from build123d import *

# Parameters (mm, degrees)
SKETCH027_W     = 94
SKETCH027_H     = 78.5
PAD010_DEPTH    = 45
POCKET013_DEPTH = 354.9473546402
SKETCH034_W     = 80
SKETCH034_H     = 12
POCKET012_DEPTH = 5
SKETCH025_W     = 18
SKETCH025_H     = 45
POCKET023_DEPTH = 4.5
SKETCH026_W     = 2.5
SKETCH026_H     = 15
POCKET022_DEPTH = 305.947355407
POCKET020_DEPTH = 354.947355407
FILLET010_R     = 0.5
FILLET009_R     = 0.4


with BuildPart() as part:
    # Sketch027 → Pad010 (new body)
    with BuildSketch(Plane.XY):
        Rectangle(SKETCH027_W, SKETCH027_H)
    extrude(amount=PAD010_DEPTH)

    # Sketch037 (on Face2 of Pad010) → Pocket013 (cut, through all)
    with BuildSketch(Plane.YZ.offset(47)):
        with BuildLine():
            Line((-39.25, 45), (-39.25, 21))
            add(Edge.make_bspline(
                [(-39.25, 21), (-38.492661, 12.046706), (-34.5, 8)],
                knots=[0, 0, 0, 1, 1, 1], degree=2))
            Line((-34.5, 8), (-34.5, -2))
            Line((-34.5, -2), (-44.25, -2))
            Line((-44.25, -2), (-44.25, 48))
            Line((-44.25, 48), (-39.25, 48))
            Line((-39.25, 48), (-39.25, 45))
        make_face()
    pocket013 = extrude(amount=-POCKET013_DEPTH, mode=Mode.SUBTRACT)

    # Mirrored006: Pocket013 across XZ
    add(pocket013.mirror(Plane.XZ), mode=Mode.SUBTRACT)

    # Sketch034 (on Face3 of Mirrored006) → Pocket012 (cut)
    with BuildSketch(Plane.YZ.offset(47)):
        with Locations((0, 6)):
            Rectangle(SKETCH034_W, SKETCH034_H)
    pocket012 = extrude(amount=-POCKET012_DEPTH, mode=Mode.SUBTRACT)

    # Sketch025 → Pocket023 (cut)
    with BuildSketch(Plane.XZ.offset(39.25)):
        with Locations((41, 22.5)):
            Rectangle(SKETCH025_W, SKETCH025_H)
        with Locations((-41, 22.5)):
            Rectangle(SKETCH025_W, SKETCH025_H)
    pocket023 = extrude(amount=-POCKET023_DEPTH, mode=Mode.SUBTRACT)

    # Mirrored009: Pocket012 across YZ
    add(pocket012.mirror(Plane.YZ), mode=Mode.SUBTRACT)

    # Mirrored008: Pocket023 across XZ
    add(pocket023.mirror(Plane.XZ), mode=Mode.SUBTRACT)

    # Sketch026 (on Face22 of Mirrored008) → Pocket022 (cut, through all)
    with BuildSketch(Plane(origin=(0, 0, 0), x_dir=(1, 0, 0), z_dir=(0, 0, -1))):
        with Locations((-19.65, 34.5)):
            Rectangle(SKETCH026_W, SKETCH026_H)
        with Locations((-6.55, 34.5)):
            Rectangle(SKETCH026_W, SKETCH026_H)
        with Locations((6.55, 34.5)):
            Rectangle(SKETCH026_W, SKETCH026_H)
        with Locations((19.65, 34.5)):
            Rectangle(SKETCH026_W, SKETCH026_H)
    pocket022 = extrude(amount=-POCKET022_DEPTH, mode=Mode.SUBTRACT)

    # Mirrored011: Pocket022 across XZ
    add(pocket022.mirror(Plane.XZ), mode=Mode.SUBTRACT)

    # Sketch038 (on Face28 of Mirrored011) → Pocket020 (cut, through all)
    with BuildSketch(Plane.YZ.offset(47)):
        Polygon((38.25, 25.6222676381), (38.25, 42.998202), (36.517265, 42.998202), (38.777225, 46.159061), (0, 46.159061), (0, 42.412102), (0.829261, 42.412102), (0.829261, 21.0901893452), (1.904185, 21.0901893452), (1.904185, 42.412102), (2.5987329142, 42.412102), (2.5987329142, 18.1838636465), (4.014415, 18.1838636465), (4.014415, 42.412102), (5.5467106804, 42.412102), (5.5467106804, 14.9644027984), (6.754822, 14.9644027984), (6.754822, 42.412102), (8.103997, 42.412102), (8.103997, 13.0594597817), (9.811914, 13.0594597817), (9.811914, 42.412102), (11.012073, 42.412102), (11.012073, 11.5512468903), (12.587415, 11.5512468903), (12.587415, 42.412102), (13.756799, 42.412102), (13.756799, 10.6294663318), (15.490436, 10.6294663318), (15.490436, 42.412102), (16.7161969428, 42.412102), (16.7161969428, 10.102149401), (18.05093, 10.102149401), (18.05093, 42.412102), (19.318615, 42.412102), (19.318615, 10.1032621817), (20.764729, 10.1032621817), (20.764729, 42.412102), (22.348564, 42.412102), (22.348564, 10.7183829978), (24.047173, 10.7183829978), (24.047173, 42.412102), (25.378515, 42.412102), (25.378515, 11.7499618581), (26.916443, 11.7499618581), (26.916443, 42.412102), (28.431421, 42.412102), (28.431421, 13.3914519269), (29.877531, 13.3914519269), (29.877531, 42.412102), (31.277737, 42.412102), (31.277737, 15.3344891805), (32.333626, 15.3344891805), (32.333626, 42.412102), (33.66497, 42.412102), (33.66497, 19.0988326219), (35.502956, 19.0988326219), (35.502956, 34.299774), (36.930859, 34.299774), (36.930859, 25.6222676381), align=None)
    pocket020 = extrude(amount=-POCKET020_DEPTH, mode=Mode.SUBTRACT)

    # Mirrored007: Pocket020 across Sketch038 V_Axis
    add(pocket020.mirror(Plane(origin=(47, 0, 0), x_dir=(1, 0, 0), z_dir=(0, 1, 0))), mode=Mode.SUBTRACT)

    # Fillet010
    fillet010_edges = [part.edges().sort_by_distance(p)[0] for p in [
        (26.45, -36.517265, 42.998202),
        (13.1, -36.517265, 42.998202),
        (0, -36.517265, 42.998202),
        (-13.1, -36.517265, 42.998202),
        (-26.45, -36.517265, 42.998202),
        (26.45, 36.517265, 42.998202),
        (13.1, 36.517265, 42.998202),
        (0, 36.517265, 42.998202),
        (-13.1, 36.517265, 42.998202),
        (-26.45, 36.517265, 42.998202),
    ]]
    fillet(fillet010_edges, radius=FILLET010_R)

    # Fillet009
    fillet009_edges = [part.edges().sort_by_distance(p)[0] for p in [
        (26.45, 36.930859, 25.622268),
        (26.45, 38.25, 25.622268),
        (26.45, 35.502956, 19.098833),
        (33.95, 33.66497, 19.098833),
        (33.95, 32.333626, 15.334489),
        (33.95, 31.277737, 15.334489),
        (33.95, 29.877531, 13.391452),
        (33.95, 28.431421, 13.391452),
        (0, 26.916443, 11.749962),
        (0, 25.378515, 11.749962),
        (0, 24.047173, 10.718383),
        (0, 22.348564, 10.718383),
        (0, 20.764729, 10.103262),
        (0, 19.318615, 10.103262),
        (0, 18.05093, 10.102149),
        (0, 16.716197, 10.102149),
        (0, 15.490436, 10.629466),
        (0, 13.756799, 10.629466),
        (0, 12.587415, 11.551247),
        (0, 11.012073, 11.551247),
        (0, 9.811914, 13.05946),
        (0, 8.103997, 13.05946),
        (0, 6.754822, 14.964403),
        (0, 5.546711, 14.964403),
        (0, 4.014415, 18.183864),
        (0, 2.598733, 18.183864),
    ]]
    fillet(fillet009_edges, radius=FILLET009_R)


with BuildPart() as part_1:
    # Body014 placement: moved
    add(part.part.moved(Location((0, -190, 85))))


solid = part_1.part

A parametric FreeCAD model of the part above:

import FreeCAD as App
import Part
import Sketcher

V = App.Vector


def edges_at(feature, points):
    """Names of the edges that pass closest to the given points."""
    edges = feature.Shape.Edges
    near = lambda p: min(range(len(edges)), key=lambda i: edges[i].distToShape(Part.Vertex(*p))[0])
    return sorted({f"Edge{near(p) + 1}" for p in points})


def add_polygon(sketch, points):
    """Adds a closed chain of lines whose ends are joined by coincident constraints."""
    first, n = sketch.GeometryCount, len(points)
    for a, b in zip(points, points[1:] + points[:1]):
        sketch.addGeometry(Part.LineSegment(App.Vector(*a, 0), App.Vector(*b, 0)), False)
    for i in range(n):
        sketch.addConstraint(Sketcher.Constraint("Coincident", first + i, 2, first + (i + 1) % n, 1))

doc = App.newDocument("Part")
body = doc.addObject("PartDesign::Body", "Body")

sketch1 = body.newObject("Sketcher::SketchObject", "Sketch")
sketch1.AttachmentSupport = (doc.getObject("XY_Plane"), [""])
sketch1.MapMode = "FlatFace"
add_polygon(sketch1, [(-47, 39), (-47, -39), (47, -39), (47, 39)])
sketch1.addConstraint([
    Sketcher.Constraint("Vertical", 0),
    Sketcher.Constraint("Horizontal", 1),
    Sketcher.Constraint("Vertical", 2),
    Sketcher.Constraint("Horizontal", 3),
    Sketcher.Constraint("Symmetric", 0, 2, 2, 2, -1, 1),
    Sketcher.Constraint("DistanceX", 1, 1, 1, 2, 94.0),
    Sketcher.Constraint("DistanceY", 0, 2, 0, 1, 78.5),
])
pad1 = body.newObject("PartDesign::Pad", "Pad")
pad1.Profile = sketch1
pad1.Length = 45

sketch2 = body.newObject("Sketcher::SketchObject", "Sketch001")
sketch2.AttachmentSupport = (doc.getObject("YZ_Plane"), [""])
sketch2.MapMode = "FlatFace"
sketch2.AttachmentOffset = App.Placement(V(0, 0, 47), App.Rotation())
sketch2.addGeometry([
    Part.BSplineCurve([V(-39.25, 21, 0), V(-38.492661, 12.046706, 0), V(-34.5, 8, 0)], [3, 3], [0, 1], False, 2, [1, 1, 1], False),
    Part.LineSegment(V(-39.25, 21, 0), V(-39.25, 48, 0)),
    Part.LineSegment(V(-39.25, 48, 0), V(-44.25, 48, 0)),
    Part.LineSegment(V(-44.25, 48, 0), V(-44.25, -2, 0)),
    Part.LineSegment(V(-44.25, -2, 0), V(-34.5, -2, 0)),
    Part.LineSegment(V(-34.5, -2, 0), V(-34.5, 8, 0)),
], False)
sketch2.addConstraint([
    Sketcher.Constraint("Block", 0),
    Sketcher.Constraint("Coincident", 0, 1, 1, 1),
    Sketcher.Constraint("Coincident", 1, 2, 2, 1),
    Sketcher.Constraint("Coincident", 2, 2, 3, 1),
    Sketcher.Constraint("Coincident", 3, 2, 4, 1),
    Sketcher.Constraint("Coincident", 4, 2, 5, 1),
    Sketcher.Constraint("Coincident", 5, 2, 0, 2),
    Sketcher.Constraint("Vertical", 1),
    Sketcher.Constraint("Horizontal", 2),
    Sketcher.Constraint("Vertical", 3),
    Sketcher.Constraint("Horizontal", 4),
    Sketcher.Constraint("Vertical", 5),
    Sketcher.Constraint("DistanceX", 2, 2, 2, 1, 5.0),
    Sketcher.Constraint("DistanceY", 1, 1, 1, 2, 27.0),
    Sketcher.Constraint("DistanceY", 3, 2, 3, 1, 50.0),
])
pocket1 = body.newObject("PartDesign::Pocket", "Pocket")
pocket1.Profile = sketch2
pocket1.Type = "ThroughAll"
doc.recompute()

mirrored = body.newObject("PartDesign::Mirrored", "Mirrored")
mirrored.Originals = [pocket1]
mirrored.MirrorPlane = (doc.getObject("XZ_Plane"), [""])
body.Tip = mirrored

sketch3 = body.newObject("Sketcher::SketchObject", "Sketch002")
sketch3.AttachmentSupport = (doc.getObject("YZ_Plane"), [""])
sketch3.MapMode = "FlatFace"
sketch3.AttachmentOffset = App.Placement(V(0, 0, 47), App.Rotation())
add_polygon(sketch3, [(-40, 12), (-40, 0), (40, 0), (40, 12)])
sketch3.addConstraint([
    Sketcher.Constraint("Vertical", 0),
    Sketcher.Constraint("Horizontal", 1),
    Sketcher.Constraint("Vertical", 2),
    Sketcher.Constraint("Horizontal", 3),
    Sketcher.Constraint("Symmetric", 0, 2, 1, 2, -1, 1),
    Sketcher.Constraint("DistanceX", 1, 1, 1, 2, 80.0),
    Sketcher.Constraint("DistanceY", 0, 2, 0, 1, 12.0),
])
pocket2 = body.newObject("PartDesign::Pocket", "Pocket001")
pocket2.Profile = sketch3
pocket2.Length = 5

sketch4 = body.newObject("Sketcher::SketchObject", "Sketch003")
sketch4.AttachmentSupport = (doc.getObject("XZ_Plane"), [""])
sketch4.MapMode = "FlatFace"
sketch4.AttachmentOffset = App.Placement(V(0, 0, 39.25), App.Rotation())
add_polygon(sketch4, [(32, 45), (32, 0), (50, 0), (50, 45)])
add_polygon(sketch4, [(-50, 45), (-50, 0), (-32, 0), (-32, 45)])
sketch4.addConstraint([
    Sketcher.Constraint("Vertical", 0),
    Sketcher.Constraint("Horizontal", 1),
    Sketcher.Constraint("Vertical", 2),
    Sketcher.Constraint("Horizontal", 3),
    Sketcher.Constraint("Vertical", 4),
    Sketcher.Constraint("Horizontal", 5),
    Sketcher.Constraint("Vertical", 6),
    Sketcher.Constraint("Horizontal", 7),
    Sketcher.Constraint("Symmetric", 1, 2, 4, 2, -1, 1),
    Sketcher.Constraint("Symmetric", 0, 2, 5, 2, -2),
    Sketcher.Constraint("Horizontal", 3, 2, 6, 2),
    Sketcher.Constraint("DistanceX", 1, 1, 1, 2, 18.0),
    Sketcher.Constraint("DistanceY", 0, 2, 0, 1, 45.0),
    Sketcher.Constraint("DistanceX", -1, 1, 0, 2, 32.0),
])
pocket3 = body.newObject("PartDesign::Pocket", "Pocket002")
pocket3.Profile = sketch4
pocket3.Length = 4.5
doc.recompute()

mirrored2 = body.newObject("PartDesign::Mirrored", "Mirrored001")
mirrored2.Originals = [pocket2]
mirrored2.MirrorPlane = (doc.getObject("YZ_Plane"), [""])
body.Tip = mirrored2
doc.recompute()

mirrored3 = body.newObject("PartDesign::Mirrored", "Mirrored002")
mirrored3.Originals = [pocket3]
mirrored3.MirrorPlane = (doc.getObject("XZ_Plane"), [""])
body.Tip = mirrored3

sketch5 = body.newObject("Sketcher::SketchObject", "Sketch004")
sketch5.AttachmentSupport = (doc.getObject("XY_Plane"), [""])
sketch5.MapMode = "FlatFace"
add_polygon(sketch5, [(-20.9, -42), (-20.9, -27), (-18.4, -27), (-18.4, -42)])
add_polygon(sketch5, [(-7.8, -42), (-7.8, -27), (-5.3, -27), (-5.3, -42)])
add_polygon(sketch5, [(5.3, -42), (5.3, -27), (7.8, -27), (7.8, -42)])
add_polygon(sketch5, [(18.4, -42), (18.4, -27), (20.9, -27), (20.9, -42)])
sketch5.addConstraint([
    Sketcher.Constraint("Vertical", 0),
    Sketcher.Constraint("Horizontal", 1),
    Sketcher.Constraint("Vertical", 2),
    Sketcher.Constraint("Horizontal", 3),
    Sketcher.Constraint("Vertical", 4),
    Sketcher.Constraint("Horizontal", 5),
    Sketcher.Constraint("Vertical", 6),
    Sketcher.Constraint("Horizontal", 7),
    Sketcher.Constraint("Vertical", 8),
    Sketcher.Constraint("Horizontal", 9),
    Sketcher.Constraint("Vertical", 10),
    Sketcher.Constraint("Horizontal", 11),
    Sketcher.Constraint("Vertical", 12),
    Sketcher.Constraint("Horizontal", 13),
    Sketcher.Constraint("Vertical", 14),
    Sketcher.Constraint("Horizontal", 15),
    Sketcher.Constraint("Symmetric", 5, 2, 8, 2, -2),
    Sketcher.Constraint("Symmetric", 7, 2, 10, 2, -2),
    Sketcher.Constraint("Symmetric", 1, 2, 12, 2, -2),
    Sketcher.Constraint("Symmetric", 3, 2, 14, 2, -2),
    Sketcher.Constraint("Horizontal", 1, 2, 4, 2),
    Sketcher.Constraint("Horizontal", 3, 2, 6, 2),
    Sketcher.Constraint("Equal", 3, 5),
    Sketcher.Constraint("DistanceY", 0, 1, 0, 2, 15.0),
    Sketcher.Constraint("DistanceX", 1, 1, 1, 2, 2.5),
    Sketcher.Constraint("DistanceY", 0, 2, -1, 1, 27.0),
    Sketcher.Constraint("DistanceX", 0, 2, -1, 1, 20.9),
    Sketcher.Constraint("DistanceX", 4, 2, -1, 1, 7.8),
])
pocket4 = body.newObject("PartDesign::Pocket", "Pocket003")
pocket4.Profile = sketch5
pocket4.Type = "ThroughAll"
pocket4.Reversed = True
doc.recompute()

mirrored4 = body.newObject("PartDesign::Mirrored", "Mirrored003")
mirrored4.Originals = [pocket4]
mirrored4.MirrorPlane = (doc.getObject("XZ_Plane"), [""])
body.Tip = mirrored4

sketch6 = body.newObject("Sketcher::SketchObject", "Sketch005")
sketch6.AttachmentSupport = (doc.getObject("YZ_Plane"), [""])
sketch6.MapMode = "FlatFace"
sketch6.AttachmentOffset = App.Placement(V(0, 0, 47), App.Rotation())
add_polygon(sketch6, [(38.2, 25.6), (38.2, 43), (36.5, 43), (38.8, 46.2), (0, 46.2), (0, 42.4), (0.8, 42.4), (0.8, 21.1), (1.9, 21.1), (1.9, 42.4), (2.6, 42.4), (2.6, 18.2), (4, 18.2), (4, 42.4), (5.5, 42.4), (5.5, 15), (6.8, 15), (6.8, 42.4), (8.1, 42.4), (8.1, 13.1), (9.8, 13.1), (9.8, 42.4), (11, 42.4), (11, 11.6), (12.6, 11.6), (12.6, 42.4), (13.8, 42.4), (13.8, 10.6), (15.5, 10.6), (15.5, 42.4), (16.7, 42.4), (16.7, 10.1), (18.1, 10.1), (18.1, 42.4), (19.3, 42.4), (19.3, 10.1), (20.8, 10.1), (20.8, 42.4), (22.3, 42.4), (22.3, 10.7), (24, 10.7), (24, 42.4), (25.4, 42.4), (25.4, 11.7), (26.9, 11.7), (26.9, 42.4), (28.4, 42.4), (28.4, 13.4), (29.9, 13.4), (29.9, 42.4), (31.3, 42.4), (31.3, 15.3), (32.3, 15.3), (32.3, 42.4), (33.7, 42.4), (33.7, 19.1), (35.5, 19.1), (35.5, 34.3), (36.9, 34.3), (36.9, 25.6)])
sketch6.addConstraint([
    Sketcher.Constraint("Vertical", 0),
    Sketcher.Constraint("Horizontal", 1),
    Sketcher.Constraint("Horizontal", 3),
    Sketcher.Constraint("Vertical", 4),
    Sketcher.Constraint("Horizontal", 5),
    Sketcher.Constraint("Vertical", 6),
    Sketcher.Constraint("Horizontal", 7),
    Sketcher.Constraint("Vertical", 8),
    Sketcher.Constraint("Horizontal", 9),
    Sketcher.Constraint("Vertical", 10),
    Sketcher.Constraint("Horizontal", 11),
    Sketcher.Constraint("Vertical", 12),
    Sketcher.Constraint("Horizontal", 13),
    Sketcher.Constraint("Vertical", 14),
    Sketcher.Constraint("Horizontal", 15),
    Sketcher.Constraint("Vertical", 16),
    Sketcher.Constraint("Horizontal", 17),
    Sketcher.Constraint("Vertical", 18),
    Sketcher.Constraint("Horizontal", 19),
    Sketcher.Constraint("Vertical", 20),
    Sketcher.Constraint("Horizontal", 21),
    Sketcher.Constraint("Vertical", 22),
    Sketcher.Constraint("Horizontal", 23),
    Sketcher.Constraint("Vertical", 24),
    Sketcher.Constraint("Horizontal", 25),
    Sketcher.Constraint("Vertical", 26),
    Sketcher.Constraint("Horizontal", 27),
    Sketcher.Constraint("Vertical", 28),
    Sketcher.Constraint("Horizontal", 29),
    Sketcher.Constraint("Vertical", 30),
    Sketcher.Constraint("Horizontal", 31),
    Sketcher.Constraint("Vertical", 32),
    Sketcher.Constraint("Horizontal", 33),
    Sketcher.Constraint("Vertical", 34),
    Sketcher.Constraint("Horizontal", 35),
    Sketcher.Constraint("Vertical", 36),
    Sketcher.Constraint("Horizontal", 37),
    Sketcher.Constraint("Vertical", 38),
    Sketcher.Constraint("Horizontal", 39),
    Sketcher.Constraint("Vertical", 40),
    Sketcher.Constraint("Horizontal", 41),
    Sketcher.Constraint("Vertical", 42),
    Sketcher.Constraint("Horizontal", 43),
    Sketcher.Constraint("Vertical", 44),
    Sketcher.Constraint("Horizontal", 45),
    Sketcher.Constraint("Vertical", 46),
    Sketcher.Constraint("Horizontal", 47),
    Sketcher.Constraint("Vertical", 48),
    Sketcher.Constraint("Horizontal", 49),
    Sketcher.Constraint("Vertical", 50),
    Sketcher.Constraint("Horizontal", 51),
    Sketcher.Constraint("Vertical", 52),
    Sketcher.Constraint("Horizontal", 53),
    Sketcher.Constraint("Vertical", 54),
    Sketcher.Constraint("Horizontal", 55),
    Sketcher.Constraint("Vertical", 56),
    Sketcher.Constraint("Horizontal", 57),
    Sketcher.Constraint("Vertical", 58),
    Sketcher.Constraint("Horizontal", 59),
    Sketcher.Constraint("PointOnObject", 3, 2, -2),
    Sketcher.Constraint("Horizontal", 5, 2, 8, 2),
    Sketcher.Constraint("Horizontal", 9, 2, 12, 2),
    Sketcher.Constraint("Horizontal", 13, 2, 16, 2),
    Sketcher.Constraint("Horizontal", 17, 2, 20, 2),
    Sketcher.Constraint("Horizontal", 21, 2, 24, 2),
    Sketcher.Constraint("Horizontal", 25, 2, 28, 2),
    Sketcher.Constraint("Horizontal", 29, 2, 32, 2),
    Sketcher.Constraint("Horizontal", 33, 2, 36, 2),
    Sketcher.Constraint("Horizontal", 37, 2, 40, 2),
    Sketcher.Constraint("Horizontal", 41, 2, 44, 2),
    Sketcher.Constraint("Horizontal", 45, 2, 48, 2),
    Sketcher.Constraint("Horizontal", 49, 2, 52, 2),
    Sketcher.Constraint("Equal", 41, 53),
    Sketcher.Constraint("DistanceX", -1, 1, 0, 2, 38.25),
    Sketcher.Constraint("DistanceY", 14, 2, 14, 1, 27.447699),
    Sketcher.Constraint("DistanceX", 5, 1, 5, 2, 0.829261),
    Sketcher.Constraint("DistanceX", 15, 1, 15, 2, 1.208111),
    Sketcher.Constraint("DistanceX", 21, 1, 21, 2, 1.200159),
    Sketcher.Constraint("DistanceX", 29, 1, 29, 2, 1.225761),
    Sketcher.Constraint("DistanceX", 39, 1, 39, 2, 1.698609),
    Sketcher.Constraint("DistanceX", 41, 1, 41, 2, 1.331342),
    Sketcher.Constraint("DistanceX", 43, 1, 43, 2, 1.537928),
    Sketcher.Constraint("DistanceX", 47, 1, 47, 2, 1.44611),
    Sketcher.Constraint("DistanceX", 51, 1, 51, 2, 1.055889),
    Sketcher.Constraint("DistanceX", 59, 1, 59, 2, 1.319141),
    Sketcher.Constraint("DistanceY", 4, 2, 4, 1, 3.746959),
    Sketcher.Constraint("DistanceY", 10, 2, 10, 1, 24.228238),
    Sketcher.Constraint("DistanceY", 34, 2, 34, 1, 32.30884),
    Sketcher.Constraint("DistanceY", 38, 2, 38, 1, 31.693719),
    Sketcher.Constraint("DistanceY", 42, 2, 42, 1, 30.66214),
    Sketcher.Constraint("DistanceY", 46, 2, 46, 1, 29.02065),
    Sketcher.Constraint("DistanceY", 54, 2, 54, 1, 23.313269),
    Sketcher.Constraint("DistanceY", 56, 1, 56, 2, 15.200941),
    Sketcher.Constraint("DistanceY", -1, 1, 4, 2, 42.412102),
    Sketcher.Constraint("DistanceX", -1, 1, 25, 2, 13.756799),
    Sketcher.Constraint("DistanceY", 4, 2, 1, 2, 0.5861),
    Sketcher.Constraint("DistanceX", 11, 2, 19, 2, 5.797499),
    Sketcher.Constraint("DistanceX", 19, 2, 23, 2, 2.775501),
    Sketcher.Constraint("DistanceX", 24, 2, 33, 2, 6.7312),
    Sketcher.Constraint("DistanceX", 31, 2, 35, 2, 2.713799),
    Sketcher.Constraint("DistanceX", 33, 2, 41, 2, 6.0599),
    Sketcher.Constraint("DistanceX", 1, 2, 1, 1, 1.732735),
    Sketcher.Constraint("DistanceX", 3, 2, 3, 1, 38.777225),
    Sketcher.Constraint("DistanceX", 7, 1, 7, 2, 1.074924),
    Sketcher.Constraint("DistanceX", 9, 1, 9, 2, 0.694548),
    Sketcher.Constraint("DistanceX", 11, 1, 11, 2, 1.415682),
    Sketcher.Constraint("DistanceX", 13, 1, 13, 2, 1.532296),
    Sketcher.Constraint("DistanceX", 17, 1, 17, 2, 1.349175),
    Sketcher.Constraint("DistanceX", 27, 1, 27, 2, 1.733637),
    Sketcher.Constraint("DistanceX", 31, 1, 31, 2, 1.334733),
    Sketcher.Constraint("DistanceX", 45, 1, 45, 2, 1.514978),
    Sketcher.Constraint("DistanceX", 49, 1, 49, 2, 1.400206),
    Sketcher.Constraint("DistanceX", 55, 1, 55, 2, 1.837986),
    Sketcher.Constraint("DistanceY", 0, 1, 0, 2, 17.375934),
    Sketcher.Constraint("DistanceY", 6, 2, 6, 1, 21.321913),
    Sketcher.Constraint("DistanceY", 18, 2, 18, 1, 29.352642),
    Sketcher.Constraint("DistanceY", 22, 2, 22, 1, 30.860855),
    Sketcher.Constraint("DistanceY", 26, 2, 26, 1, 31.782636),
    Sketcher.Constraint("DistanceY", 30, 2, 30, 1, 32.309953),
    Sketcher.Constraint("DistanceY", 50, 2, 50, 1, 27.077613),
])
pocket5 = body.newObject("PartDesign::Pocket", "Pocket004")
pocket5.Profile = sketch6
pocket5.Type = "ThroughAll"
doc.recompute()

mirrored5 = body.newObject("PartDesign::Mirrored", "Mirrored004")
mirrored5.Originals = [pocket5]
mirrored5.MirrorPlane = (doc.getObject("XZ_Plane"), [""])
body.Tip = mirrored5
doc.recompute()

fillet = body.newObject("PartDesign::Fillet", "Fillet")
fillet.Base = (mirrored5, edges_at(mirrored5, [
    (26.45, -36.517, 42.998),
    (13.1, -36.517, 42.998),
    (0, -36.517, 42.998),
    (-13.1, -36.517, 42.998),
    (-26.45, -36.517, 42.998),
    (26.45, 36.517, 42.998),
    (13.1, 36.517, 42.998),
    (0, 36.517, 42.998),
    (-13.1, 36.517, 42.998),
    (-26.45, 36.517, 42.998),
]))
fillet.Radius = 0.5
doc.recompute()

fillet2 = body.newObject("PartDesign::Fillet", "Fillet001")
fillet2.Base = (fillet, edges_at(fillet, [
    (26.45, 36.931, 25.622),
    (26.45, 38.25, 25.622),
    (26.45, 35.503, 19.099),
    (33.95, 33.665, 19.099),
    (33.95, 32.334, 15.334),
    (33.95, 31.278, 15.334),
    (33.95, 29.878, 13.391),
    (33.95, 28.431, 13.391),
    (0, 26.916, 11.75),
    (0, 25.379, 11.75),
    (0, 24.047, 10.718),
    (0, 22.349, 10.718),
    (0, 20.765, 10.103),
    (0, 19.319, 10.103),
    (0, 18.051, 10.102),
    (0, 16.716, 10.102),
    (0, 15.49, 10.629),
    (0, 13.757, 10.629),
    (0, 12.587, 11.551),
    (0, 11.012, 11.551),
    (0, 9.812, 13.059),
    (0, 8.104, 13.059),
    (0, 6.755, 14.964),
    (0, 5.547, 14.964),
    (0, 4.014, 18.184),
    (0, 2.599, 18.184),
]))
fillet2.Radius = 0.4
body2 = doc.addObject("PartDesign::Body", "Body001")
doc.recompute()

body.Placement = App.Placement(V(0, -190, 85), App.Rotation(V(0, 0, 1), 0))
boolean = body2.newObject("PartDesign::Boolean", "Boolean")
boolean.Type = "Fuse"
boolean.addObjects([body])

doc.recompute()
